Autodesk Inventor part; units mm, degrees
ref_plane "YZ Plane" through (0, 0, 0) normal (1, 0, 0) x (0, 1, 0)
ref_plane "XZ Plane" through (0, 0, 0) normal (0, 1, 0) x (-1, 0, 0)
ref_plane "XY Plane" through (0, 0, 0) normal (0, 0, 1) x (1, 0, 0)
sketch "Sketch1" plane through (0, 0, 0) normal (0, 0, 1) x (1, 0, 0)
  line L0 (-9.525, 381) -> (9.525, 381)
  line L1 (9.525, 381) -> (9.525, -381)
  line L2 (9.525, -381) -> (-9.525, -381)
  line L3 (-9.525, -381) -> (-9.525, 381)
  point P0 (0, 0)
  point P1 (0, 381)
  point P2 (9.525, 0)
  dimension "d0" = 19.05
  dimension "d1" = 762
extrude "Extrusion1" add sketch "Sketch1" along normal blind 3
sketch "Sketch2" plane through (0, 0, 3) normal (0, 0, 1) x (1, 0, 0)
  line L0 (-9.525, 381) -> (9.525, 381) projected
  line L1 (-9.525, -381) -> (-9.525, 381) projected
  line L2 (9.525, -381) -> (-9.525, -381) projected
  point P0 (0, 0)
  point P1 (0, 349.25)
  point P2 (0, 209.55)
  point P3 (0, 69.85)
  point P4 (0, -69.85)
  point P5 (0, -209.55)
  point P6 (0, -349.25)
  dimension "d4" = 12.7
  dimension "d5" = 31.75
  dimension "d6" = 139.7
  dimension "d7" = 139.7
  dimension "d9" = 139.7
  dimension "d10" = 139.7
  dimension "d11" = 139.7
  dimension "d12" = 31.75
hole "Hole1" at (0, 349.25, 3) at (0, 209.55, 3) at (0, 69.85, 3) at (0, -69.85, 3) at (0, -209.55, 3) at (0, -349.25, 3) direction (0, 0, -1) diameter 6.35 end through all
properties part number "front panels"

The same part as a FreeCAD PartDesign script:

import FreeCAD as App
import Part
import Sketcher

V = App.Vector
Q = App.Units.Quantity


def add_polygon(sketch, points):
    """Adds a closed chain of lines whose ends are joined by coincident constraints."""
    first, n = sketch.GeometryCount, len(points)
    for a, b in zip(points, points[1:] + points[:1]):
        sketch.addGeometry(Part.LineSegment(App.Vector(*a, 0), App.Vector(*b, 0)), False)
    for i in range(n):
        sketch.addConstraint(Sketcher.Constraint("Coincident", first + i, 2, first + (i + 1) % n, 1))

doc = App.newDocument("Part")
body = doc.addObject("PartDesign::Body", "Body")

# Sketch on XY plane
sketch1 = doc.addObject("Sketcher::SketchObject", "Sketch")
body.addObject(sketch1)
sketch1.AttachmentSupport = (doc.XY_Plane, [""])
sketch1.MapMode = "FlatFace"
add_polygon(sketch1, [(9.525, 381), (-9.525, 381), (-9.525, -381), (9.525, -381)])  # lines 0-3
sketch1.addConstraint(Sketcher.Constraint("Horizontal", 0))
sketch1.addConstraint(Sketcher.Constraint("Vertical", 1))
sketch1.addConstraint(Sketcher.Constraint("Horizontal", 2))
sketch1.addConstraint(Sketcher.Constraint("Vertical", 3))
sketch1.addConstraint(Sketcher.Constraint("Symmetric", 0, 2, 2, 2, -1, 1))
sketch1.addConstraint(Sketcher.Constraint("DistanceY", 1, 2, 1, 1, Q("30 in")))
sketch1.addConstraint(Sketcher.Constraint("DistanceX", 0, 2, 0, 1, Q("0.75 in")))
pad1 = doc.addObject("PartDesign::Pad", "Pad")
body.addObject(pad1)
pad1.Profile = sketch1
pad1.Length = Q("0.1181102 in")

# Sketch on XY plane
sketch2 = doc.addObject("Sketcher::SketchObject", "Sketch001")
body.addObject(sketch2)
sketch2.AttachmentSupport = (doc.XY_Plane, [""])
sketch2.MapMode = "FlatFace"
sketch2.AttachmentOffset = App.Placement(V(0, 0, 0.1181102 * 25.4), App.Rotation())
sketch2.addGeometry(Part.Circle(V(0, 349.25, 0), V(0, 0, 1), 3.175), False)
sketch2.addGeometry(Part.Circle(V(0, 209.55, 0), V(0, 0, 1), 3.175), False)
sketch2.addGeometry(Part.Circle(V(0, 69.85, 0), V(0, 0, 1), 3.175), False)
sketch2.addGeometry(Part.Circle(V(0, -69.85, 0), V(0, 0, 1), 3.175), False)
sketch2.addGeometry(Part.Circle(V(0, -209.55, 0), V(0, 0, 1), 3.175), False)
sketch2.addGeometry(Part.Circle(V(0, -349.25, 0), V(0, 0, 1), 3.175), False)
sketch2.addConstraint(Sketcher.Constraint("Equal", 0, 1))
sketch2.addConstraint(Sketcher.Constraint("Equal", 1, 2))
sketch2.addConstraint(Sketcher.Constraint("Equal", 2, 3))
sketch2.addConstraint(Sketcher.Constraint("Equal", 3, 4))
sketch2.addConstraint(Sketcher.Constraint("Equal", 4, 5))
sketch2.addConstraint(Sketcher.Constraint("Symmetric", 2, 3, 3, 3, -1, 1))
sketch2.addConstraint(Sketcher.Constraint("Symmetric", 1, 3, 4, 3, -1, 1))
sketch2.addConstraint(Sketcher.Constraint("Symmetric", 0, 3, 5, 3, -1, 1))
sketch2.addConstraint(Sketcher.Constraint("PointOnObject", 0, 3, -2))
sketch2.addConstraint(Sketcher.Constraint("PointOnObject", 1, 3, -2))
sketch2.addConstraint(Sketcher.Constraint("PointOnObject", 2, 3, -2))
sketch2.addConstraint(Sketcher.Constraint("Diameter", 0, Q("0.25 in")))
sketch2.addConstraint(Sketcher.Constraint("DistanceY", 2, 3, 0, 3, Q("11 in")))
sketch2.addConstraint(Sketcher.Constraint("DistanceY", 3, 3, 1, 3, Q("11 in")))
sketch2.addConstraint(Sketcher.Constraint("DistanceY", 1, 3, 0, 3, Q("5.5 in")))
doc.recompute()
hole = doc.addObject("PartDesign::Hole", "Hole")
body.addObject(hole)
hole.Profile = sketch2
hole.ThreadType = "None"
hole.Diameter = Q("0.25 in")
hole.DepthType = "ThroughAll"

doc.recompute()
